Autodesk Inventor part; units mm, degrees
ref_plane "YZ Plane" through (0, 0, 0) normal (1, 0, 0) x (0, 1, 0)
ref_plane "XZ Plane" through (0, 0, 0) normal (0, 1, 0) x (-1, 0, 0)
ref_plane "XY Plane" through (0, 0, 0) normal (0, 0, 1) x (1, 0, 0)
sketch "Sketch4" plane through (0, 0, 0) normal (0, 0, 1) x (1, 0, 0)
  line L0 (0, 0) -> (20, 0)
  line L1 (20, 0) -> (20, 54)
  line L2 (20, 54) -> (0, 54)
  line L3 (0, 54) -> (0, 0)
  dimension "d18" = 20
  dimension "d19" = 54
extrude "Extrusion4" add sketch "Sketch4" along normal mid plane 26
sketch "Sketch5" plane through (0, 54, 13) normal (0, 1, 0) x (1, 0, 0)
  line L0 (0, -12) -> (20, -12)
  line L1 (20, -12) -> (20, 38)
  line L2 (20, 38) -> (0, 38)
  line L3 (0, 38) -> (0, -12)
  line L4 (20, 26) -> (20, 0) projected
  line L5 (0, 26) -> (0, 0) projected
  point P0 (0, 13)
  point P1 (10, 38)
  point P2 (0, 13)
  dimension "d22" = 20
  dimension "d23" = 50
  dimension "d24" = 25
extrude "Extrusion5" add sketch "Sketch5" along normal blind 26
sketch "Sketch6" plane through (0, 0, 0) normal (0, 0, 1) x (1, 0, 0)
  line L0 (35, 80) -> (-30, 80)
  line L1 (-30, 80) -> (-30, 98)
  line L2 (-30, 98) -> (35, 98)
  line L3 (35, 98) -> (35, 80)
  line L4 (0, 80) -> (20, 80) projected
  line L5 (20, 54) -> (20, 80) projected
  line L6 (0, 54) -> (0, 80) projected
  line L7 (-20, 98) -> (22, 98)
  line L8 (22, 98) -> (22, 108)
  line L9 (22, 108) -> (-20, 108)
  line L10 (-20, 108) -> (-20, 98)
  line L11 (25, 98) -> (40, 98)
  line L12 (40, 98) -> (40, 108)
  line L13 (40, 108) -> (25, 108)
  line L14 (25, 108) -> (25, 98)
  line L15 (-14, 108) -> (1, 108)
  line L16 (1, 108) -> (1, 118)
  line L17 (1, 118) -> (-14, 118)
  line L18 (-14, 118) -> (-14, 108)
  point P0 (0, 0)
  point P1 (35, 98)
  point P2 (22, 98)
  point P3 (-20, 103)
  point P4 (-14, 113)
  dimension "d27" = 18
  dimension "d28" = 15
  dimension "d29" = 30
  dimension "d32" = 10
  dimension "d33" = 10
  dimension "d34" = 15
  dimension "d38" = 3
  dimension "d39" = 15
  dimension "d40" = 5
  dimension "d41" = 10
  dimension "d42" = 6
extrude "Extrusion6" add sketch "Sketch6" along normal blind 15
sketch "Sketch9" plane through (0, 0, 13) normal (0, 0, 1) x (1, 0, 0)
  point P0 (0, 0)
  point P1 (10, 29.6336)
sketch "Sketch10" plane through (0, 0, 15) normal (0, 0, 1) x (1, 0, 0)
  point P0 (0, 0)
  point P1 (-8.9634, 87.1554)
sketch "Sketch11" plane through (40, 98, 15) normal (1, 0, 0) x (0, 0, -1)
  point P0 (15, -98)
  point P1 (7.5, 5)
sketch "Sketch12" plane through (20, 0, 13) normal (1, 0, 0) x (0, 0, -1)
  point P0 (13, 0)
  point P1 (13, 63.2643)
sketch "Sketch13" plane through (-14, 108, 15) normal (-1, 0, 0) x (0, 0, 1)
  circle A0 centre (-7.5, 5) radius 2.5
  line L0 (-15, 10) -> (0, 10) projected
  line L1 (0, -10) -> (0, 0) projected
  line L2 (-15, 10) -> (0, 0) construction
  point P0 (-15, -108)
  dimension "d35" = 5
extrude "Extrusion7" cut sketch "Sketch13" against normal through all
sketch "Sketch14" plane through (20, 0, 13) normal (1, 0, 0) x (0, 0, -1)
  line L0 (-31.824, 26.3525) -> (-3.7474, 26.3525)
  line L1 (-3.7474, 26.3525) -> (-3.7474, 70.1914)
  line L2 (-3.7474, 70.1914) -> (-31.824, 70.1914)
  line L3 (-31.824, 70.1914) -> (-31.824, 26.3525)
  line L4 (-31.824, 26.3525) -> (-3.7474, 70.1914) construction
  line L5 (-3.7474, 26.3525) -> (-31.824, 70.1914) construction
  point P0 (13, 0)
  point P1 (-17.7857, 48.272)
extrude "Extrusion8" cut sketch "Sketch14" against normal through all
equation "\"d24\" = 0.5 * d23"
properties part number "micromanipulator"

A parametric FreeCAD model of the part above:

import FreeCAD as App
import Part
import Sketcher
Q = App.Units.Quantity


def add_polygon(sketch, points):
    """Adds a closed chain of lines whose ends are joined by coincident constraints."""
    first, n = sketch.GeometryCount, len(points)
    for a, b in zip(points, points[1:] + points[:1]):
        sketch.addGeometry(Part.LineSegment(App.Vector(*a, 0), App.Vector(*b, 0)), False)
    for i in range(n):
        sketch.addConstraint(Sketcher.Constraint("Coincident", first + i, 2, first + (i + 1) % n, 1))

doc = App.newDocument("Part")
body = doc.addObject("PartDesign::Body", "Body")

sketch1 = doc.addObject("Sketcher::SketchObject", "Sketch")
body.addObject(sketch1)
sketch1.AttachmentSupport = (doc.XY_Plane, [""])
sketch1.MapMode = "FlatFace"
add_polygon(sketch1, [(0, 54), (0, 0), (20, 0), (20, 54)])
sketch1.addConstraint(Sketcher.Constraint("Vertical", 0))
sketch1.addConstraint(Sketcher.Constraint("Horizontal", 1))
sketch1.addConstraint(Sketcher.Constraint("Vertical", 2))
sketch1.addConstraint(Sketcher.Constraint("Horizontal", 3))
sketch1.addConstraint(Sketcher.Constraint("Coincident", 0, 2, -1, 1))
sketch1.addConstraint(Sketcher.Constraint("DistanceX", 1, 1, 1, 2, Q("20 mm")))
sketch1.addConstraint(Sketcher.Constraint("DistanceY", 0, 2, 0, 1, Q("54 mm")))
pad1 = doc.addObject("PartDesign::Pad", "Pad")
body.addObject(pad1)
pad1.Profile = sketch1
pad1.Length = 26
pad1.Midplane = True

sketch2 = doc.addObject("Sketcher::SketchObject", "Sketch001")
body.addObject(sketch2)
sketch2.AttachmentSupport = (doc.XZ_Plane, [""])
sketch2.MapMode = "FlatFace"
sketch2.AttachmentOffset = App.Placement(App.Vector(0, 0, -54), App.Rotation())
add_polygon(sketch2, [(0, -25), (0, 25), (20, 25), (20, -25)])
sketch2.addConstraint(Sketcher.Constraint("Vertical", 0))
sketch2.addConstraint(Sketcher.Constraint("Horizontal", 1))
sketch2.addConstraint(Sketcher.Constraint("Vertical", 2))
sketch2.addConstraint(Sketcher.Constraint("Horizontal", 3))
sketch2.addConstraint(Sketcher.Constraint("Symmetric", 0, 2, 3, 2, -1, 1))
sketch2.addConstraint(Sketcher.Constraint("DistanceX", 1, 1, 1, 2, Q("20 mm")))
sketch2.addConstraint(Sketcher.Constraint("DistanceY", 0, 1, 0, 2, Q("50 mm")))
pad2 = doc.addObject("PartDesign::Pad", "Pad001")
body.addObject(pad2)
pad2.Profile = sketch2
pad2.Length = 26
pad2.Reversed = True

sketch3 = doc.addObject("Sketcher::SketchObject", "Sketch002")
body.addObject(sketch3)
sketch3.AttachmentSupport = (doc.XY_Plane, [""])
sketch3.MapMode = "FlatFace"
add_polygon(sketch3, [(35, 80), (35, 98), (40, 98), (40, 108), (25, 108), (25, 98), (22, 98), (22, 108), (1, 108), (1, 118), (-14, 118), (-14, 108), (-20, 108), (-20, 98), (-30, 98), (-30, 80)])
sketch3.addConstraint(Sketcher.Constraint("Vertical", 0))
sketch3.addConstraint(Sketcher.Constraint("Horizontal", 1))
sketch3.addConstraint(Sketcher.Constraint("Vertical", 2))
sketch3.addConstraint(Sketcher.Constraint("Horizontal", 3))
sketch3.addConstraint(Sketcher.Constraint("Vertical", 4))
sketch3.addConstraint(Sketcher.Constraint("Horizontal", 5))
sketch3.addConstraint(Sketcher.Constraint("Vertical", 6))
sketch3.addConstraint(Sketcher.Constraint("Horizontal", 7))
sketch3.addConstraint(Sketcher.Constraint("Vertical", 8))
sketch3.addConstraint(Sketcher.Constraint("Horizontal", 9))
sketch3.addConstraint(Sketcher.Constraint("Vertical", 10))
sketch3.addConstraint(Sketcher.Constraint("Horizontal", 11))
sketch3.addConstraint(Sketcher.Constraint("Vertical", 12))
sketch3.addConstraint(Sketcher.Constraint("Horizontal", 13))
sketch3.addConstraint(Sketcher.Constraint("Vertical", 14))
sketch3.addConstraint(Sketcher.Constraint("Horizontal", 15))
sketch3.addConstraint(Sketcher.Constraint("Horizontal", 1, 2, 4, 2))
sketch3.addConstraint(Sketcher.Constraint("Horizontal", 3, 2, 6, 2))
sketch3.addConstraint(Sketcher.Constraint("Horizontal", 7, 2, 10, 2))
sketch3.addConstraint(Sketcher.Constraint("Horizontal", 5, 2, 12, 2))
sketch3.addConstraint(Sketcher.Constraint("Equal", 3, 9))
sketch3.addConstraint(Sketcher.Constraint("Equal", 13, 2))
sketch3.addConstraint(Sketcher.Constraint("Equal", 6, 8))
sketch3.addConstraint(Sketcher.Constraint("DistanceX", 1, 1, 1, 2, Q("5 mm")))
sketch3.addConstraint(Sketcher.Constraint("DistanceX", 3, 2, 3, 1, Q("15 mm")))
sketch3.addConstraint(Sketcher.Constraint("DistanceX", 5, 2, 5, 1, Q("3 mm")))
sketch3.addConstraint(Sketcher.Constraint("DistanceX", 11, 2, 11, 1, Q("6 mm")))
sketch3.addConstraint(Sketcher.Constraint("DistanceX", 13, 2, 13, 1, Q("10 mm")))
sketch3.addConstraint(Sketcher.Constraint("DistanceY", 0, 1, 0, 2, Q("18 mm")))
sketch3.addConstraint(Sketcher.Constraint("DistanceX", 13, 2, -1, 1, Q("30 mm")))
sketch3.addConstraint(Sketcher.Constraint("DistanceX", 7, 2, 7, 1, Q("21 mm")))
sketch3.addConstraint(Sketcher.Constraint("DistanceY", -1, 1, 0, 2, Q("98 mm")))
pad3 = doc.addObject("PartDesign::Pad", "Pad002")
body.addObject(pad3)
pad3.Profile = sketch3
pad3.Length = 15

sketch4 = doc.addObject("Sketcher::SketchObject", "Sketch003")
body.addObject(sketch4)
sketch4.AttachmentSupport = (doc.YZ_Plane, [""])
sketch4.MapMode = "FlatFace"
sketch4.AttachmentOffset = App.Placement(App.Vector(0, 0, -14), App.Rotation())
sketch4.addGeometry(Part.Circle(App.Vector(113, 7.5, 0), App.Vector(0, 0, 1), 2.5), False)
sketch4.addConstraint(Sketcher.Constraint("Diameter", 0, Q("5 mm")))
sketch4.addConstraint(Sketcher.Constraint("DistanceX", -1, 1, 0, 3, Q("113 mm")))
sketch4.addConstraint(Sketcher.Constraint("DistanceY", -1, 1, 0, 3, Q("7.5 mm")))
pocket1 = doc.addObject("PartDesign::Pocket", "Pocket")
body.addObject(pocket1)
pocket1.Profile = sketch4
pocket1.Type = "ThroughAll"
pocket1.Reversed = True

sketch5 = doc.addObject("Sketcher::SketchObject", "Sketch004")
body.addObject(sketch5)
sketch5.AttachmentSupport = (doc.YZ_Plane, [""])
sketch5.MapMode = "FlatFace"
sketch5.AttachmentOffset = App.Placement(App.Vector(0, 0, 20), App.Rotation())
add_polygon(sketch5, [(70, 45), (26, 45), (26, 17), (70, 17)])
sketch5.addConstraint(Sketcher.Constraint("Horizontal", 0))
sketch5.addConstraint(Sketcher.Constraint("Vertical", 1))
sketch5.addConstraint(Sketcher.Constraint("Horizontal", 2))
sketch5.addConstraint(Sketcher.Constraint("Vertical", 3))
sketch5.addConstraint(Sketcher.Constraint("DistanceX", 0, 2, 0, 1, Q("43.839 mm")))
sketch5.addConstraint(Sketcher.Constraint("DistanceY", 1, 2, 1, 1, Q("28.0766 mm")))
sketch5.addConstraint(Sketcher.Constraint("DistanceY", -1, 1, 0, 2, Q("44.824 mm")))
sketch5.addConstraint(Sketcher.Constraint("DistanceX", -1, 1, 0, 2, Q("26.3525 mm")))
pocket2 = doc.addObject("PartDesign::Pocket", "Pocket001")
body.addObject(pocket2)
pocket2.Profile = sketch5
pocket2.Type = "ThroughAll"

doc.recompute()
